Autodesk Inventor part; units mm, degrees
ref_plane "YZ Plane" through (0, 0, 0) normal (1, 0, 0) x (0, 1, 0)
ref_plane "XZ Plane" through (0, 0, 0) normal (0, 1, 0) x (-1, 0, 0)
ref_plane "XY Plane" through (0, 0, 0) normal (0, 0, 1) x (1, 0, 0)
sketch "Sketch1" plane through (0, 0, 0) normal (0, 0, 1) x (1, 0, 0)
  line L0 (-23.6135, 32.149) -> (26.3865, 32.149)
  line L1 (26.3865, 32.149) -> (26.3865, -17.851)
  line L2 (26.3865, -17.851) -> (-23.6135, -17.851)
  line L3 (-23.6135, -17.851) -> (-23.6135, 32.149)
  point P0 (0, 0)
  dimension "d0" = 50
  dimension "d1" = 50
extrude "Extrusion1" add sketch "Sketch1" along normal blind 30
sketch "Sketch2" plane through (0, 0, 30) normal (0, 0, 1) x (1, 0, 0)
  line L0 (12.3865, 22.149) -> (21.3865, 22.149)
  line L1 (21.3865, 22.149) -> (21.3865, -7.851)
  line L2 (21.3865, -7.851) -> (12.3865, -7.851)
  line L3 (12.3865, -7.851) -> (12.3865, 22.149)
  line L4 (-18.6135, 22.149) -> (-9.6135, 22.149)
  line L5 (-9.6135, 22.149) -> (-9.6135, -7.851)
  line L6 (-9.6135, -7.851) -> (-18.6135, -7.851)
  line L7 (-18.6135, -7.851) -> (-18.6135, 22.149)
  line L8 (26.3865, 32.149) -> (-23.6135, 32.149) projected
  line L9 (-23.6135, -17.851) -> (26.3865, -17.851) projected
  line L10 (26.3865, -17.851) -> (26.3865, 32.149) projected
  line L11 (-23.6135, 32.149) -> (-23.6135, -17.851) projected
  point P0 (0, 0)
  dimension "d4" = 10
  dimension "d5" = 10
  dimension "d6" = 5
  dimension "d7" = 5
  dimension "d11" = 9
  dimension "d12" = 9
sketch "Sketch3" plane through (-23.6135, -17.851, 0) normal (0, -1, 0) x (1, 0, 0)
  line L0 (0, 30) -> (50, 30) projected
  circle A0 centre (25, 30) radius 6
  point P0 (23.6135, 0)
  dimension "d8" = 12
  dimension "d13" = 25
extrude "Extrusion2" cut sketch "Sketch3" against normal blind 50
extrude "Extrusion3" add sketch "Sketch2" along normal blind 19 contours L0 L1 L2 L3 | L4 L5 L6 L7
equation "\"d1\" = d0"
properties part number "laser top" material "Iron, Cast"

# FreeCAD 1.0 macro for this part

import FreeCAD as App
import Part
import Sketcher
from FreeCAD import Vector
Q = App.Units.Quantity


def add_polygon(sketch, points):
    """Adds a closed chain of lines whose ends are joined by coincident constraints."""
    first, n = sketch.GeometryCount, len(points)
    for a, b in zip(points, points[1:] + points[:1]):
        sketch.addGeometry(Part.LineSegment(App.Vector(*a, 0), App.Vector(*b, 0)), False)
    for i in range(n):
        sketch.addConstraint(Sketcher.Constraint("Coincident", first + i, 2, first + (i + 1) % n, 1))

doc = App.newDocument("Part")
params = doc.addObject("Spreadsheet::Sheet", "Params")
for row, (alias, value) in enumerate([
    ("sketch1_width", "50 mm"),
    ("pad1_length", "30 mm"),
    ("sketch2_diameter", "12 mm"),
    ("pocket1_length", "50 mm"),
    ("sketch3_width", "9 mm"),
    ("sketch3_height", "30 mm"),
    ("pad2_length", "19 mm"),
], start=1):
    params.set(f"A{row}", alias)
    params.set(f"B{row}", "=" + value)
    params.setAlias(f"B{row}", alias)

body = doc.addObject("PartDesign::Body", "Body")

# Sketch on XY plane
sketch1 = body.newObject("Sketcher::SketchObject", "Sketch")
sketch1.AttachmentSupport = (doc.getObject("XY_Plane"), [""])
sketch1.MapMode = "FlatFace"
add_polygon(sketch1, [(26, 32), (-24, 32), (-24, -18), (26, -18)])  # lines 0-3
sketch1.addConstraint([
    Sketcher.Constraint("Horizontal", 0),
    Sketcher.Constraint("Vertical", 1),
    Sketcher.Constraint("Horizontal", 2),
    Sketcher.Constraint("Vertical", 3),
    Sketcher.Constraint("Equal", 2, 1),
    Sketcher.Constraint("DistanceX", 0, 2, 0, 1, Q("50 mm")),
    Sketcher.Constraint("DistanceY", -1, 1, 0, 2, Q("32.149 mm")),
    Sketcher.Constraint("DistanceX", 0, 2, -1, 1, Q("23.6135 mm")),
])
sketch1.setExpression("Constraints[9]", "Params.sketch1_width")
pad1 = body.newObject("PartDesign::Pad", "Pad")
pad1.Profile = sketch1
pad1.setExpression("Length", "Params.pad1_length")

# Sketch on XZ plane
sketch2 = body.newObject("Sketcher::SketchObject", "Sketch001")
sketch2.AttachmentSupport = (doc.getObject("XZ_Plane"), [""])
sketch2.MapMode = "FlatFace"
sketch2.AttachmentOffset = App.Placement(Vector(0, 0, 17.851), App.Rotation())
sketch2.addGeometry(Part.Circle(Vector(1, 30, 0), Vector(0, 0, 1), 6), False)
sketch2.addConstraint([
    Sketcher.Constraint("Diameter", 0, Q("12 mm")),
    Sketcher.Constraint("DistanceY", -1, 1, 0, 3, Q("30 mm")),
    Sketcher.Constraint("DistanceX", -1, 1, 0, 3, Q("1.3865 mm")),
])
sketch2.setExpression("Constraints[0]", "Params.sketch2_diameter")
pocket1 = body.newObject("PartDesign::Pocket", "Pocket")
pocket1.Profile = sketch2
pocket1.setExpression("Length", "Params.pocket1_length")

# Sketch on XY plane
sketch3 = body.newObject("Sketcher::SketchObject", "Sketch002")
sketch3.AttachmentSupport = (doc.getObject("XY_Plane"), [""])
sketch3.MapMode = "FlatFace"
sketch3.AttachmentOffset = App.Placement(Vector(0, 0, 30), App.Rotation())
add_polygon(sketch3, [(21, 22), (12, 22), (12, -8), (21, -8)])  # lines 0-3
add_polygon(sketch3, [(-10, 22), (-19, 22), (-19, -8), (-10, -8)])  # lines 4-7
sketch3.addConstraint([
    Sketcher.Constraint("Horizontal", 0),
    Sketcher.Constraint("Vertical", 1),
    Sketcher.Constraint("Horizontal", 2),
    Sketcher.Constraint("Vertical", 3),
    Sketcher.Constraint("Horizontal", 4),
    Sketcher.Constraint("Vertical", 5),
    Sketcher.Constraint("Horizontal", 6),
    Sketcher.Constraint("Vertical", 7),
    Sketcher.Constraint("Horizontal", 3, 2, 4, 2),
    Sketcher.Constraint("Horizontal", 2, 2, 5, 2),
    Sketcher.Constraint("Equal", 2, 4),
    Sketcher.Constraint("DistanceX", 0, 2, 0, 1, Q("9 mm")),
    Sketcher.Constraint("DistanceY", 1, 2, 1, 1, Q("30 mm")),
    Sketcher.Constraint("DistanceX", 4, 2, 0, 2, Q("31 mm")),
    Sketcher.Constraint("DistanceY", -1, 1, 0, 2, Q("22.149 mm")),
    Sketcher.Constraint("DistanceX", -1, 1, 0, 2, Q("12.3865 mm")),
])
sketch3.setExpression("Constraints[19]", "Params.sketch3_width")
sketch3.setExpression("Constraints[20]", "Params.sketch3_height")
pad2 = body.newObject("PartDesign::Pad", "Pad001")
pad2.Profile = sketch3
pad2.setExpression("Length", "Params.pad2_length")

doc.recompute()
